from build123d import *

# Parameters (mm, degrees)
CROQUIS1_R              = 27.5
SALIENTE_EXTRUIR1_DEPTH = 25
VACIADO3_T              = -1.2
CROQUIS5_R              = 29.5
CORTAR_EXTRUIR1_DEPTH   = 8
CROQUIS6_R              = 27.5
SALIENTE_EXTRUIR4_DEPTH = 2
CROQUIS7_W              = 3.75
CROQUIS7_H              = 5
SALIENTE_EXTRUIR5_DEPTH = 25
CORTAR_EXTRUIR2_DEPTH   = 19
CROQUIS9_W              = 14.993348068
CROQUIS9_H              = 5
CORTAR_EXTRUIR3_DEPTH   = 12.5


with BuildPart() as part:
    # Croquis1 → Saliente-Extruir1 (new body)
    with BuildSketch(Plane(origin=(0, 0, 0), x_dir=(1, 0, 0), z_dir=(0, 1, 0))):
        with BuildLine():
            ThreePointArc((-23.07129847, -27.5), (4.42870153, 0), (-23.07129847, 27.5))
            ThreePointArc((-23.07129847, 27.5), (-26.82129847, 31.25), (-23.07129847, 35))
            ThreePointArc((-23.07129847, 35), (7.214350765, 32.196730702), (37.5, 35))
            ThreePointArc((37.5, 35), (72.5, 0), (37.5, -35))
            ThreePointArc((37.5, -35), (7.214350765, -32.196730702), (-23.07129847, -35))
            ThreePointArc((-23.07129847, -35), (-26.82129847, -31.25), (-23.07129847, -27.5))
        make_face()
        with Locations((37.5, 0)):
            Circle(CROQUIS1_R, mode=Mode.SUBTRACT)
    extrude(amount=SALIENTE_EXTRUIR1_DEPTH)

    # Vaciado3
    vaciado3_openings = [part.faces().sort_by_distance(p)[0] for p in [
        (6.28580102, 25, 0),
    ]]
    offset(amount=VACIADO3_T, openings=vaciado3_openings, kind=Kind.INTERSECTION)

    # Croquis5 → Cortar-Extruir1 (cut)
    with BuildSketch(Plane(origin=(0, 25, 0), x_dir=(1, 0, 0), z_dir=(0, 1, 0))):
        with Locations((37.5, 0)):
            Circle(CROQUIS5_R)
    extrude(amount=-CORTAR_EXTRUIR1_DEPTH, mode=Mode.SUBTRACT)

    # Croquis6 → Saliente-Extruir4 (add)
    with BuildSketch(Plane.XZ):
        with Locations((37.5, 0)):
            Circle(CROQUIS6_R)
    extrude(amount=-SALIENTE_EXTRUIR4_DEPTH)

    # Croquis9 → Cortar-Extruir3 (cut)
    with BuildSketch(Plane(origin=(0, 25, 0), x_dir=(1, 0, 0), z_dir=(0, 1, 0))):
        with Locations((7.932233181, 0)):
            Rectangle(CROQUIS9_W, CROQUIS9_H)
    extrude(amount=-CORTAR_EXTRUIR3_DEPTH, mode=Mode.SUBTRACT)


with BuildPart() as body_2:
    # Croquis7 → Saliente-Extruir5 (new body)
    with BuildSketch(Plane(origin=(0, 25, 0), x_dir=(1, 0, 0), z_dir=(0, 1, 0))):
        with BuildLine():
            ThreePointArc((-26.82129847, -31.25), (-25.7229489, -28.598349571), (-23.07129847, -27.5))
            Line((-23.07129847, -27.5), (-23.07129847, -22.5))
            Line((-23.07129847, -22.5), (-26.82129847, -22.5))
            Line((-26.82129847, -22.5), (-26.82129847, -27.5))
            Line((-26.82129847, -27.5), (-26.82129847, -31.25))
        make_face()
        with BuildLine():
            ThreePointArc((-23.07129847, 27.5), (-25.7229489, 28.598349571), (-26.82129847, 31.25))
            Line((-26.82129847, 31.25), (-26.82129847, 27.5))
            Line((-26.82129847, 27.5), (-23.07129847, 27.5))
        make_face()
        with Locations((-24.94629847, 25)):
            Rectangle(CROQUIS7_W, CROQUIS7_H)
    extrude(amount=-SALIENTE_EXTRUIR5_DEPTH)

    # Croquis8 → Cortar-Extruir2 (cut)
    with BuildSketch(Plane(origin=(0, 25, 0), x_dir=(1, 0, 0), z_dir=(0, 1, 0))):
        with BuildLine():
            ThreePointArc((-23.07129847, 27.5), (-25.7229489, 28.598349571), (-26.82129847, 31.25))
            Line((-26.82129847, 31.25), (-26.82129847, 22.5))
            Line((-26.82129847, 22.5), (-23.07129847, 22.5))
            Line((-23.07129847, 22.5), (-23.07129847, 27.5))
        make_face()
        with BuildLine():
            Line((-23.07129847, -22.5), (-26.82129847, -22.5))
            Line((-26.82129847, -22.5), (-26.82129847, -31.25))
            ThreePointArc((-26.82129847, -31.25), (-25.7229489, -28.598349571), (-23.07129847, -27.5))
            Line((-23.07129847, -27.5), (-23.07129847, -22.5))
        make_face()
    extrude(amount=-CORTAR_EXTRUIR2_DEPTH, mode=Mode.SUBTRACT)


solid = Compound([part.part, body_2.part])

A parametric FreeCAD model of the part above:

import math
import FreeCAD as App
import Part
import Sketcher
from FreeCAD import Vector


def faces_at(feature, points):
    """Names of the faces that lie closest to the given points."""
    faces = feature.Shape.Faces
    near = lambda p: min(range(len(faces)), key=lambda i: faces[i].distToShape(Part.Vertex(*p))[0])
    return sorted({f"Face{near(p) + 1}" for p in points})

doc = App.newDocument("Part")
body = doc.addObject("PartDesign::Body", "Body")

sketch1 = doc.addObject("Sketcher::SketchObject", "Sketch")
body.addObject(sketch1)
sketch1.AttachmentSupport = (doc.XZ_Plane, [""])
sketch1.MapMode = "FlatFace"
sketch1.addGeometry([
    Part.ArcOfCircle(Part.Circle(Vector(-23.071298, 0, 0), Vector(0, 0, 1), 27.5), math.radians(-90), math.radians(90)),
    Part.ArcOfCircle(Part.Circle(Vector(-23.071298, 31.25, 0), Vector(0, 0, 1), 3.75), math.radians(90), math.radians(270)),
    Part.ArcOfCircle(Part.Circle(Vector(7.214351, 197.196731, 0), Vector(0, 0, 1), 165), math.radians(-100.57657), math.radians(-79.42343)),
    Part.ArcOfCircle(Part.Circle(Vector(37.5, 0, 0), Vector(0, 0, 1), 35), math.radians(-90), math.radians(90)),
    Part.ArcOfCircle(Part.Circle(Vector(7.214351, -197.196731, 0), Vector(0, 0, 1), 165), math.radians(79.42343), math.radians(100.57657)),
    Part.ArcOfCircle(Part.Circle(Vector(-23.071298, -31.25, 0), Vector(0, 0, 1), 3.75), math.radians(90), math.radians(270)),
    Part.Circle(Vector(37.5, 0, 0), Vector(0, 0, 1), 27.5),
], False)
sketch1.addConstraint([
    Sketcher.Constraint("Tangent", 0, 2, 1, 2),
    Sketcher.Constraint("Coincident", 1, 1, 2, 1),
    Sketcher.Constraint("Coincident", 2, 2, 3, 2),
    Sketcher.Constraint("Coincident", 3, 1, 4, 1),
    Sketcher.Constraint("Coincident", 4, 2, 5, 2),
    Sketcher.Constraint("Tangent", 5, 1, 0, 1),
    Sketcher.Constraint("Coincident", 6, 3, 3, 3),
    Sketcher.Constraint("Equal", 2, 4),
    Sketcher.Constraint("Equal", 1, 5),
    Sketcher.Constraint("Equal", 0, 6),
    Sketcher.Constraint("Symmetric", 2, 3, 4, 3, -1),
    Sketcher.Constraint("Symmetric", 1, 3, 5, 3, -1),
    Sketcher.Constraint("PointOnObject", 3, 3, -1),
    Sketcher.Constraint("Horizontal", 1, 1, 2, 2),
    Sketcher.Constraint("Vertical", 0, 3, 1, 3),
    Sketcher.Constraint("Vertical", 0, 2, 1, 1),
    Sketcher.Constraint("Vertical", 6, 3, 2, 2),
    Sketcher.Constraint("Diameter", 6, 55.0),
    Sketcher.Constraint("Radius", 2, 165.0),
    Sketcher.Constraint("Radius", 3, 35.0),
    Sketcher.Constraint("DistanceX", -1, 1, 3, 3, 37.5),
    Sketcher.Constraint("DistanceX", 0, 3, -1, 1, 23.071298),
])
pad1 = doc.addObject("PartDesign::Pad", "Pad")
body.addObject(pad1)
pad1.Profile = sketch1
pad1.Length = 25
pad1.Reversed = True
doc.recompute()

thickness = doc.addObject("PartDesign::Thickness", "Thickness")
body.addObject(thickness)
thickness.Base = (pad1, faces_at(pad1, [(22.839, 25, 28)]))
thickness.Value = 1.2
thickness.Reversed = True
thickness.Join = "Intersection"

sketch2 = doc.addObject("Sketcher::SketchObject", "Sketch001")
body.addObject(sketch2)
sketch2.AttachmentSupport = (doc.XZ_Plane, [""])
sketch2.MapMode = "FlatFace"
sketch2.AttachmentOffset = App.Placement(Vector(0, 0, -25), App.Rotation())
sketch2.addGeometry(Part.Circle(Vector(37.5, 0, 0), Vector(0, 0, 1), 29.5), False)
sketch2.addConstraint([
    Sketcher.Constraint("PointOnObject", 0, 3, -1),
    Sketcher.Constraint("Diameter", 0, 59.0),
    Sketcher.Constraint("DistanceX", -1, 1, 0, 3, 37.5),
])
pocket1 = doc.addObject("PartDesign::Pocket", "Pocket")
body.addObject(pocket1)
pocket1.Profile = sketch2
pocket1.Length = 8
pocket1.Reversed = True

sketch3 = doc.addObject("Sketcher::SketchObject", "Sketch002")
body.addObject(sketch3)
sketch3.AttachmentSupport = (doc.XZ_Plane, [""])
sketch3.MapMode = "FlatFace"
sketch3.addGeometry(Part.Circle(Vector(37.5, 0, 0), Vector(0, 0, 1), 27.5), False)
sketch3.addConstraint([
    Sketcher.Constraint("PointOnObject", 0, 3, -1),
    Sketcher.Constraint("Diameter", 0, 55.0),
    Sketcher.Constraint("DistanceX", -1, 1, 0, 3, 37.5),
])
pad2 = doc.addObject("PartDesign::Pad", "Pad001")
body.addObject(pad2)
pad2.Profile = sketch3
pad2.Length = 2
pad2.Reversed = True

sketch4 = doc.addObject("Sketcher::SketchObject", "Sketch003")
body.addObject(sketch4)
sketch4.AttachmentSupport = (doc.XZ_Plane, [""])
sketch4.MapMode = "FlatFace"
sketch4.AttachmentOffset = App.Placement(Vector(0, 0, -25), App.Rotation())
sketch4.addGeometry([
    Part.LineSegment(Vector(0.435559, -2.5, 0), Vector(0.435559, 2.5, 0)),
    Part.LineSegment(Vector(0.435559, 2.5, 0), Vector(15.428907, 2.5, 0)),
    Part.LineSegment(Vector(15.428907, 2.5, 0), Vector(15.428907, -2.5, 0)),
    Part.LineSegment(Vector(15.428907, -2.5, 0), Vector(0.435559, -2.5, 0)),
], False)
sketch4.addConstraint([
    Sketcher.Constraint("Coincident", 0, 2, 1, 1),
    Sketcher.Constraint("Coincident", 1, 2, 2, 1),
    Sketcher.Constraint("Coincident", 2, 2, 3, 1),
    Sketcher.Constraint("Coincident", 3, 2, 0, 1),
    Sketcher.Constraint("Vertical", 0),
    Sketcher.Constraint("Horizontal", 1),
    Sketcher.Constraint("Vertical", 2),
    Sketcher.Constraint("Horizontal", 3),
    Sketcher.Constraint("DistanceY", 0, 1, 0, 2, 5.0),
    Sketcher.Constraint("DistanceY", -1, 1, 0, 2, 2.5),
    Sketcher.Constraint("DistanceX", 1, 1, 1, 2, 14.993348),
    Sketcher.Constraint("DistanceX", -1, 1, 0, 2, 0.435559),
])
pocket2 = doc.addObject("PartDesign::Pocket", "Pocket001")
body.addObject(pocket2)
pocket2.Profile = sketch4
pocket2.Length = 12.5
pocket2.Reversed = True
body2 = doc.addObject("PartDesign::Body", "Body001")
body2.AllowCompound = True

sketch5 = doc.addObject("Sketcher::SketchObject", "Sketch004")
body2.addObject(sketch5)
sketch5.AttachmentSupport = (doc.getObject("XZ_Plane001"), [""])
sketch5.MapMode = "FlatFace"
sketch5.AttachmentOffset = App.Placement(Vector(0, 0, -25), App.Rotation())
sketch5.addGeometry([
    Part.ArcOfCircle(Part.Circle(Vector(-23.071298, 31.25, 0), Vector(0, 0, 1), 3.75), math.radians(180), math.radians(270)),
    Part.LineSegment(Vector(-23.071298, 27.5, 0), Vector(-23.071298, 22.5, 0)),
    Part.LineSegment(Vector(-23.071298, 22.5, 0), Vector(-26.821298, 22.5, 0)),
    Part.LineSegment(Vector(-26.821298, 22.5, 0), Vector(-26.821298, 31.25, 0)),
    Part.ArcOfCircle(Part.Circle(Vector(-23.071298, -31.25, 0), Vector(0, 0, 1), 3.75), math.radians(90), math.radians(180)),
    Part.LineSegment(Vector(-26.821298, -31.25, 0), Vector(-26.821298, -22.5, 0)),
    Part.LineSegment(Vector(-26.821298, -22.5, 0), Vector(-23.071298, -22.5, 0)),
    Part.LineSegment(Vector(-23.071298, -22.5, 0), Vector(-23.071298, -27.5, 0)),
], False)
sketch5.addConstraint([
    Sketcher.Constraint("Coincident", 0, 2, 1, 1),
    Sketcher.Constraint("Coincident", 1, 2, 2, 1),
    Sketcher.Constraint("Coincident", 2, 2, 3, 1),
    Sketcher.Constraint("Tangent", 3, 2, 0, 1),
    Sketcher.Constraint("Tangent", 4, 2, 5, 1),
    Sketcher.Constraint("Coincident", 5, 2, 6, 1),
    Sketcher.Constraint("Coincident", 6, 2, 7, 1),
    Sketcher.Constraint("Coincident", 7, 2, 4, 1),
    Sketcher.Constraint("Vertical", 1),
    Sketcher.Constraint("Horizontal", 2),
    Sketcher.Constraint("Vertical", 3),
    Sketcher.Constraint("Vertical", 5),
    Sketcher.Constraint("Horizontal", 6),
    Sketcher.Constraint("Vertical", 7),
    Sketcher.Constraint("Equal", 0, 4),
    Sketcher.Constraint("Symmetric", 0, 3, 4, 3, -1),
    Sketcher.Constraint("Symmetric", 1, 2, 6, 2, -1),
    Sketcher.Constraint("Vertical", 4, 3, 0, 2),
    Sketcher.Constraint("DistanceY", 1, 2, 1, 1, 5.0),
    Sketcher.Constraint("Radius", 0, 3.75),
    Sketcher.Constraint("DistanceY", 5, 2, 2, 2, 45.0),
    Sketcher.Constraint("DistanceX", 0, 3, -1, 1, 23.071298),
])
pad3 = doc.addObject("PartDesign::Pad", "Pad002")
body2.addObject(pad3)
pad3.Profile = sketch5
pad3.Length = 25

sketch6 = doc.addObject("Sketcher::SketchObject", "Sketch005")
body2.addObject(sketch6)
sketch6.AttachmentSupport = (doc.getObject("XZ_Plane001"), [""])
sketch6.MapMode = "FlatFace"
sketch6.AttachmentOffset = App.Placement(Vector(0, 0, -25), App.Rotation())
sketch6.addGeometry([
    Part.ArcOfCircle(Part.Circle(Vector(-23.071298, -31.25, 0), Vector(0, 0, 1), 3.75), math.radians(90), math.radians(180)),
    Part.LineSegment(Vector(-26.821298, -31.25, 0), Vector(-26.821298, -22.5, 0)),
    Part.LineSegment(Vector(-26.821298, -22.5, 0), Vector(-23.071298, -22.5, 0)),
    Part.LineSegment(Vector(-23.071298, -22.5, 0), Vector(-23.071298, -27.5, 0)),
    Part.LineSegment(Vector(-23.071298, 22.5, 0), Vector(-26.821298, 22.5, 0)),
    Part.LineSegment(Vector(-26.821298, 22.5, 0), Vector(-26.821298, 31.25, 0)),
    Part.ArcOfCircle(Part.Circle(Vector(-23.071298, 31.25, 0), Vector(0, 0, 1), 3.75), math.radians(180), math.radians(270)),
    Part.LineSegment(Vector(-23.071298, 27.5, 0), Vector(-23.071298, 22.5, 0)),
], False)
sketch6.addConstraint([
    Sketcher.Constraint("Tangent", 0, 2, 1, 1),
    Sketcher.Constraint("Coincident", 1, 2, 2, 1),
    Sketcher.Constraint("Coincident", 2, 2, 3, 1),
    Sketcher.Constraint("Coincident", 3, 2, 0, 1),
    Sketcher.Constraint("Coincident", 4, 2, 5, 1),
    Sketcher.Constraint("Tangent", 5, 2, 6, 1),
    Sketcher.Constraint("Coincident", 6, 2, 7, 1),
    Sketcher.Constraint("Coincident", 7, 2, 4, 1),
    Sketcher.Constraint("Vertical", 1),
    Sketcher.Constraint("Horizontal", 2),
    Sketcher.Constraint("Vertical", 3),
    Sketcher.Constraint("Horizontal", 4),
    Sketcher.Constraint("Vertical", 5),
    Sketcher.Constraint("Vertical", 7),
    Sketcher.Constraint("Equal", 0, 6),
    Sketcher.Constraint("Symmetric", 0, 3, 6, 3, -1),
    Sketcher.Constraint("Symmetric", 2, 2, 7, 2, -1),
    Sketcher.Constraint("Vertical", 6, 3, 2, 2),
    Sketcher.Constraint("DistanceY", 3, 2, 3, 1, 5.0),
    Sketcher.Constraint("Radius", 0, 3.75),
    Sketcher.Constraint("DistanceY", 1, 2, 4, 2, 45.0),
    Sketcher.Constraint("DistanceX", 0, 3, -1, 1, 23.071298),
])
pocket3 = doc.addObject("PartDesign::Pocket", "Pocket002")
body2.addObject(pocket3)
pocket3.Profile = sketch6
pocket3.Length = 19
pocket3.Reversed = True

doc.recompute()
